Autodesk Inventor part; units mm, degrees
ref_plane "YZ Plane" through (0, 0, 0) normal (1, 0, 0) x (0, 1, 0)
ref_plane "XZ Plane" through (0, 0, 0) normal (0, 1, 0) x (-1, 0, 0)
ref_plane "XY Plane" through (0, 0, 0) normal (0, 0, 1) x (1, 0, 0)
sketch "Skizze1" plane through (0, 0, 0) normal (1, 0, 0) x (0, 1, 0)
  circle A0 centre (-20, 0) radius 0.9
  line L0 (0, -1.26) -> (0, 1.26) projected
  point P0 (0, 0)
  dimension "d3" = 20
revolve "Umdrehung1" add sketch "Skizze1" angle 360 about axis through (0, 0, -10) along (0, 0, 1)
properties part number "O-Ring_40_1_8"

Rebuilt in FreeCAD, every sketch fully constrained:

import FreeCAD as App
import Part
import Sketcher

V = App.Vector

doc = App.newDocument("Part")
body = doc.addObject("PartDesign::Body", "Body")

# Sketch on YZ plane
sketch1 = body.newObject("Sketcher::SketchObject", "Sketch")
sketch1.AttachmentSupport = (doc.getObject("YZ_Plane"), [""])
sketch1.MapMode = "FlatFace"
sketch1.addGeometry(Part.Circle(V(-20, 0, 0), V(0, 0, 1), 0.9), False)
sketch1.addConstraint(Sketcher.Constraint("PointOnObject", 0, 3, -1))
sketch1.addConstraint(Sketcher.Constraint("DistanceX", 0, 3, -1, 1, 20.0))
sketch1.addConstraint(Sketcher.Constraint("Diameter", 0, 1.8))
revolution = body.newObject("PartDesign::Revolution", "Revolution")
revolution.Profile = sketch1
revolution.ReferenceAxis = (sketch1, ["V_Axis"])
revolution.Angle = 360

doc.recompute()
